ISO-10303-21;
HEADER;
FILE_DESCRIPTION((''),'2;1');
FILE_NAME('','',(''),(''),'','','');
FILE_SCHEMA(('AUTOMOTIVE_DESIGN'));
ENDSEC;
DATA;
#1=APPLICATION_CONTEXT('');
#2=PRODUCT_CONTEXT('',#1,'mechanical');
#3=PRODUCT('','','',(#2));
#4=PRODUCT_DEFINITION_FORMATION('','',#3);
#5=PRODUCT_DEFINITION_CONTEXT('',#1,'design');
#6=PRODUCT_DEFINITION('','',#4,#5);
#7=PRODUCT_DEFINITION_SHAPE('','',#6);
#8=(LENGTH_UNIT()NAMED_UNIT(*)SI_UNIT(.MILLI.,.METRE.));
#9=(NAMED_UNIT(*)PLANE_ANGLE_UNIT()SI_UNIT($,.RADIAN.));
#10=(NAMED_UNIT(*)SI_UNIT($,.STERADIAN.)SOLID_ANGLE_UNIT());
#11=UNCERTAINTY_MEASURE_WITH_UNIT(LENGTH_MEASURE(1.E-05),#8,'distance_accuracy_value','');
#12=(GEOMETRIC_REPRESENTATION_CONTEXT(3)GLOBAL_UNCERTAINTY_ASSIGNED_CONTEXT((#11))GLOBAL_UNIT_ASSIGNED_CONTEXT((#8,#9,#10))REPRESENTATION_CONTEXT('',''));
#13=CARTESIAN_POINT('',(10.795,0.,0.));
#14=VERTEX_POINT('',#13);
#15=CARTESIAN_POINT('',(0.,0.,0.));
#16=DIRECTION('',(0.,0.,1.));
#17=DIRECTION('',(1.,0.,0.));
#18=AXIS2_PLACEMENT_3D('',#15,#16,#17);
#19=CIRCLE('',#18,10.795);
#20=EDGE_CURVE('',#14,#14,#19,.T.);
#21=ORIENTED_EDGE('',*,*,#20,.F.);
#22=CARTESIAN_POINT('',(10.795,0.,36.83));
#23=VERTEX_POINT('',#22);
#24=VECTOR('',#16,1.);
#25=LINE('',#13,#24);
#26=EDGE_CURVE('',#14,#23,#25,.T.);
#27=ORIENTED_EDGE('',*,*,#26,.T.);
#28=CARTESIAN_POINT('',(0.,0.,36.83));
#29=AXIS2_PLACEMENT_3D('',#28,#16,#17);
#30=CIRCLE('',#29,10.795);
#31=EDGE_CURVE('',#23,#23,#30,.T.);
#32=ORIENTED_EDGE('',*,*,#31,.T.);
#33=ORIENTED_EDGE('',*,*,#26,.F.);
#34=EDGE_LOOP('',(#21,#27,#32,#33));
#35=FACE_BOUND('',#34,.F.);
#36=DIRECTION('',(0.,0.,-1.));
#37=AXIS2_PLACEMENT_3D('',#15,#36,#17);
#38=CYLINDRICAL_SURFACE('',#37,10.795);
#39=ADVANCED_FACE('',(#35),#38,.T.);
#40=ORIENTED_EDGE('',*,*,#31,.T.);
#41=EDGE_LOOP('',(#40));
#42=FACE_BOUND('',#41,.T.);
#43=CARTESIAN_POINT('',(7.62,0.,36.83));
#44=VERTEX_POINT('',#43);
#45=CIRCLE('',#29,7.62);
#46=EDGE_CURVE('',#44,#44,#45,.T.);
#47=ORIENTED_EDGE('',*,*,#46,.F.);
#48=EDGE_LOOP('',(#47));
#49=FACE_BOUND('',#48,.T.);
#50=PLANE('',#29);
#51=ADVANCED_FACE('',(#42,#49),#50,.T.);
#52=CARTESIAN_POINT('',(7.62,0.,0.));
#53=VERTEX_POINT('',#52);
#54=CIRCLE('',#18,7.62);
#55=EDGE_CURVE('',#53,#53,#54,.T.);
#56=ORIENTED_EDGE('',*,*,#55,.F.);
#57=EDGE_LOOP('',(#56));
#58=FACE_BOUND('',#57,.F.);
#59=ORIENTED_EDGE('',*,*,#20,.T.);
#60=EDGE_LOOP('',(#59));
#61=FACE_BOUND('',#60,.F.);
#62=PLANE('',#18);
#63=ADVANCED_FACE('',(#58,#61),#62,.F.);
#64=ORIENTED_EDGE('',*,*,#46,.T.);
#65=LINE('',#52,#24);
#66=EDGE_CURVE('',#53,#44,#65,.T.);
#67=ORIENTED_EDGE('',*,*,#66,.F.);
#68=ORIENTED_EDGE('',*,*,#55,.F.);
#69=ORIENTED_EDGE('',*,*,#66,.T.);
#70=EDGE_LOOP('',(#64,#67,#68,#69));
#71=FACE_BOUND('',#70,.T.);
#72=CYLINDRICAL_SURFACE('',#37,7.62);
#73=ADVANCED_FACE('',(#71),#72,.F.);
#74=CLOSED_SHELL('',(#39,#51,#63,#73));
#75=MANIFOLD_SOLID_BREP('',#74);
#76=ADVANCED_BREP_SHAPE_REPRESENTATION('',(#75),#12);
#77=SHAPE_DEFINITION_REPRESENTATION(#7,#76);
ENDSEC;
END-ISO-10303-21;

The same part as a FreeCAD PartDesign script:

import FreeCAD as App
import Part
import Sketcher

V = App.Vector
Q = App.Units.Quantity

doc = App.newDocument("Part")
body = doc.addObject("PartDesign::Body", "Body")

# Sketch on XY plane
sketch1 = body.newObject("Sketcher::SketchObject", "Sketch")
sketch1.AttachmentSupport = (doc.getObject("XY_Plane"), [""])
sketch1.MapMode = "FlatFace"
sketch1.addGeometry([
    Part.Circle(V(0, 0, 0), V(0, 0, 1), 11),
    Part.Circle(V(0, 0, 0), V(0, 0, 1), 8),
], False)
sketch1.addConstraint([
    Sketcher.Constraint("Coincident", 0, 3, -1, 1),
    Sketcher.Constraint("Coincident", 1, 3, -1, 1),
    Sketcher.Constraint("Diameter", 1, Q("0.6 in")),
    Sketcher.Constraint("Diameter", 0, Q("0.85 in")),
])
pad1 = body.newObject("PartDesign::Pad", "Pad")
pad1.Profile = sketch1
pad1.Length = Q("1.45 in")

doc.recompute()
